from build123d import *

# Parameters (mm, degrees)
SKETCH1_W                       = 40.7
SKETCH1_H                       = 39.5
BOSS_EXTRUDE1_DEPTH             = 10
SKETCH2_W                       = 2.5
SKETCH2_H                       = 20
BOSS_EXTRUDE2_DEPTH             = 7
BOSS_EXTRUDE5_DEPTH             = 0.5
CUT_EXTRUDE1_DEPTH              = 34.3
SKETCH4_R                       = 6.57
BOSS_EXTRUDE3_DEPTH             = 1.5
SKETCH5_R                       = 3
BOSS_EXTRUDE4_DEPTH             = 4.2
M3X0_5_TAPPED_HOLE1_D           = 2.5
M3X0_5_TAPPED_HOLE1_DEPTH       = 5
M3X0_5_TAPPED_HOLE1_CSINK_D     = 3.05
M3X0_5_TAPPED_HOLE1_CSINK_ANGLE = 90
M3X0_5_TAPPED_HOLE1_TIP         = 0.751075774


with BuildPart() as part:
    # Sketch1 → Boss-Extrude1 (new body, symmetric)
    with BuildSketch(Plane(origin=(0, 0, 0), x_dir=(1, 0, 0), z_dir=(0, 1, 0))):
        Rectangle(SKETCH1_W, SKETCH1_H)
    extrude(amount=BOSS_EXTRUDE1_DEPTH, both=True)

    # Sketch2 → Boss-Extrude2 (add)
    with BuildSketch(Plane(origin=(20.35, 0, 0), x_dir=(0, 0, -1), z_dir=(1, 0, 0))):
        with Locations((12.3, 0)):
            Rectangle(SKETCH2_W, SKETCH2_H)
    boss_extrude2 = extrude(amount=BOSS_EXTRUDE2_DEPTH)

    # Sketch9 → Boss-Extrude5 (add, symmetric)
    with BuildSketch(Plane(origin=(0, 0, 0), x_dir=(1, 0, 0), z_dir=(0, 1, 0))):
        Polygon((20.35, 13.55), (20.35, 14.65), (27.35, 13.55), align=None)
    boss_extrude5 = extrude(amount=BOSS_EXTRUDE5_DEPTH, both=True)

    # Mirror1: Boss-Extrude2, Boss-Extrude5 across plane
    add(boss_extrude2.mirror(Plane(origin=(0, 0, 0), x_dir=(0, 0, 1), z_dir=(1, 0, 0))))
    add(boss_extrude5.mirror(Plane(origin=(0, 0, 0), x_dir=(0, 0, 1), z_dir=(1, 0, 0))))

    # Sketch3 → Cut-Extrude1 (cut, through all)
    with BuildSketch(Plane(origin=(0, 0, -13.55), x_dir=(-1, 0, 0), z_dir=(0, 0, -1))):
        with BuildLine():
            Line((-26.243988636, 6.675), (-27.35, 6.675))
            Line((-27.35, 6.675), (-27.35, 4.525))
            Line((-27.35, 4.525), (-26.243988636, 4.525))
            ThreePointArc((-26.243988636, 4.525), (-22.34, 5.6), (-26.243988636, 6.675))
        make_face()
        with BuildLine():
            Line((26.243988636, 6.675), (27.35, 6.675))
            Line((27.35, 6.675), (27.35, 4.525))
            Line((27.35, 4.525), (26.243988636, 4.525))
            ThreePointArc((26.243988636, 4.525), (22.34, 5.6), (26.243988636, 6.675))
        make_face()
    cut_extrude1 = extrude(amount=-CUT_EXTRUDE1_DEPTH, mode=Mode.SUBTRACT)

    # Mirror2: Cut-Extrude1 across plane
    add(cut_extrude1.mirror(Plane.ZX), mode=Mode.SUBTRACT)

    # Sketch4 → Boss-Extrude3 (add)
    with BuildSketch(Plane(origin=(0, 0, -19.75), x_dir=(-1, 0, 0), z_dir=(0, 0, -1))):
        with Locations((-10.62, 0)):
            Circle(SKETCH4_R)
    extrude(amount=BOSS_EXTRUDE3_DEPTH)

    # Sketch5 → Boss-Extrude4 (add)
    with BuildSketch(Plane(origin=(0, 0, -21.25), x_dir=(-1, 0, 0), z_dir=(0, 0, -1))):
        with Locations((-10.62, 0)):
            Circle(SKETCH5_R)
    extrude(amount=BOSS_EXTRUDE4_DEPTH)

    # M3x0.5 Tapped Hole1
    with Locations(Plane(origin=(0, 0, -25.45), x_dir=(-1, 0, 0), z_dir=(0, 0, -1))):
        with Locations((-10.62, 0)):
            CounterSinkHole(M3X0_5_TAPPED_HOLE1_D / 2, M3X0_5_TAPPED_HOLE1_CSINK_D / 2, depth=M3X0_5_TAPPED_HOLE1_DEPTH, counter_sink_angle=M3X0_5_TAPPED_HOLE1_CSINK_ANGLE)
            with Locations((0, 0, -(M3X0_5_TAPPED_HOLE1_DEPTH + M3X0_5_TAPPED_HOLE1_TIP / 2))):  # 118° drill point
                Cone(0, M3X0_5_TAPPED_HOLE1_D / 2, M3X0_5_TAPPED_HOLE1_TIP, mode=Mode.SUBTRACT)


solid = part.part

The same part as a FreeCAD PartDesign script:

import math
import FreeCAD as App
import Part
import Sketcher

doc = App.newDocument("Part")
body = doc.addObject("PartDesign::Body", "Body")

# Sketch on XZ plane
sketch1 = doc.addObject("Sketcher::SketchObject", "Sketch")
body.addObject(sketch1)
sketch1.AttachmentSupport = (doc.XZ_Plane, [""])
sketch1.MapMode = "FlatFace"
sketch1.addGeometry([
    Part.LineSegment(App.Vector(-20, -20, 0), App.Vector(-20, 20, 0)),
    Part.LineSegment(App.Vector(-20, 20, 0), App.Vector(20, 20, 0)),
    Part.LineSegment(App.Vector(20, 20, 0), App.Vector(20, -20, 0)),
    Part.LineSegment(App.Vector(20, -20, 0), App.Vector(-20, -20, 0)),
], False)
sketch1.addConstraint([
    Sketcher.Constraint("Coincident", 0, 2, 1, 1),
    Sketcher.Constraint("Coincident", 1, 2, 2, 1),
    Sketcher.Constraint("Coincident", 2, 2, 3, 1),
    Sketcher.Constraint("Coincident", 3, 2, 0, 1),
    Sketcher.Constraint("Vertical", 0),
    Sketcher.Constraint("Horizontal", 1),
    Sketcher.Constraint("Vertical", 2),
    Sketcher.Constraint("Horizontal", 3),
    Sketcher.Constraint("Symmetric", 0, 2, 2, 2, -1, 1),
    Sketcher.Constraint("DistanceX", 1, 1, 1, 2, 40.7),
    Sketcher.Constraint("DistanceY", 0, 1, 0, 2, 39.5),
])
pad1 = doc.addObject("PartDesign::Pad", "Pad")
body.addObject(pad1)
pad1.Profile = sketch1
pad1.Length = 20
pad1.Midplane = True

# Sketch on YZ plane
sketch2 = doc.addObject("Sketcher::SketchObject", "Sketch001")
body.addObject(sketch2)
sketch2.AttachmentSupport = (doc.YZ_Plane, [""])
sketch2.MapMode = "FlatFace"
sketch2.AttachmentOffset = App.Placement(App.Vector(0, 0, 20.35), App.Rotation())
sketch2.addGeometry([
    Part.LineSegment(App.Vector(10, -11.1, 0), App.Vector(-10, -11.1, 0)),
    Part.LineSegment(App.Vector(-10, -11.1, 0), App.Vector(-10, -13.6, 0)),
    Part.LineSegment(App.Vector(-10, -13.6, 0), App.Vector(10, -13.6, 0)),
    Part.LineSegment(App.Vector(10, -13.6, 0), App.Vector(10, -11.1, 0)),
], False)
sketch2.addConstraint([
    Sketcher.Constraint("Coincident", 0, 2, 1, 1),
    Sketcher.Constraint("Coincident", 1, 2, 2, 1),
    Sketcher.Constraint("Coincident", 2, 2, 3, 1),
    Sketcher.Constraint("Coincident", 3, 2, 0, 1),
    Sketcher.Constraint("Horizontal", 0),
    Sketcher.Constraint("Vertical", 1),
    Sketcher.Constraint("Horizontal", 2),
    Sketcher.Constraint("Vertical", 3),
    Sketcher.Constraint("DistanceX", 0, 2, 0, 1, 20.0),
    Sketcher.Constraint("DistanceY", 1, 2, 1, 1, 2.5),
    Sketcher.Constraint("DistanceX", 0, 2, -1, 1, 10.0),
    Sketcher.Constraint("DistanceY", 0, 2, -1, 1, 11.05),
])
pad2 = doc.addObject("PartDesign::Pad", "Pad001")
body.addObject(pad2)
pad2.Profile = sketch2
pad2.Length = 7

# Sketch on XZ plane
sketch3 = doc.addObject("Sketcher::SketchObject", "Sketch002")
body.addObject(sketch3)
sketch3.AttachmentSupport = (doc.XZ_Plane, [""])
sketch3.MapMode = "FlatFace"
sketch3.addGeometry([
    Part.LineSegment(App.Vector(20.4, -14.7, 0), App.Vector(20.4, -13.6, 0)),
    Part.LineSegment(App.Vector(20.4, -13.6, 0), App.Vector(27.4, -13.6, 0)),
    Part.LineSegment(App.Vector(27.4, -13.6, 0), App.Vector(20.4, -14.7, 0)),
], False)
sketch3.addConstraint([
    Sketcher.Constraint("Coincident", 0, 2, 1, 1),
    Sketcher.Constraint("Coincident", 1, 2, 2, 1),
    Sketcher.Constraint("Coincident", 2, 2, 0, 1),
    Sketcher.Constraint("Vertical", 0),
    Sketcher.Constraint("Horizontal", 1),
    Sketcher.Constraint("DistanceX", 1, 1, 1, 2, 7.0),
    Sketcher.Constraint("DistanceY", 0, 1, 0, 2, 1.1),
    Sketcher.Constraint("DistanceX", -1, 1, 0, 2, 20.35),
    Sketcher.Constraint("DistanceY", 0, 2, -1, 1, 13.55),
])
pad3 = doc.addObject("PartDesign::Pad", "Pad002")
body.addObject(pad3)
pad3.Profile = sketch3
pad3.Length = 1
pad3.Midplane = True
doc.recompute()

mirrored = doc.addObject("PartDesign::Mirrored", "Mirrored")
body.addObject(mirrored)
mirrored.Originals = [pad2, pad3]
mirrored.MirrorPlane = (doc.YZ_Plane, [""])
body.Tip = mirrored

# Sketch on XY plane
sketch4 = doc.addObject("Sketcher::SketchObject", "Sketch003")
body.addObject(sketch4)
sketch4.AttachmentSupport = (doc.XY_Plane, [""])
sketch4.MapMode = "FlatFace"
sketch4.AttachmentOffset = App.Placement(App.Vector(0, 0, -13.55), App.Rotation())
sketch4.addGeometry([
    Part.LineSegment(App.Vector(26.2, 6.7, 0), App.Vector(27.4, 6.7, 0)),  # 0
    Part.LineSegment(App.Vector(27.4, 6.7, 0), App.Vector(27.4, 4.5, 0)),  # 1
    Part.LineSegment(App.Vector(27.4, 4.5, 0), App.Vector(26.2, 4.5, 0)),  # 2
    Part.ArcOfCircle(Part.Circle(App.Vector(24.4, 5.6, 0), App.Vector(0, 0, 1), 2.1), math.radians(31), math.radians(329)),  # 3
    Part.LineSegment(App.Vector(-27.4, 6.7, 0), App.Vector(-26.2, 6.7, 0)),  # 4
    Part.ArcOfCircle(Part.Circle(App.Vector(-24.4, 5.6, 0), App.Vector(0, 0, 1), 2.1), math.radians(-149), math.radians(149)),  # 5
    Part.LineSegment(App.Vector(-26.2, 4.5, 0), App.Vector(-27.4, 4.5, 0)),  # 6
    Part.LineSegment(App.Vector(-27.4, 4.5, 0), App.Vector(-27.4, 6.7, 0)),  # 7
], False)
sketch4.addConstraint([
    Sketcher.Constraint("Coincident", 0, 2, 1, 1),
    Sketcher.Constraint("Coincident", 1, 2, 2, 1),
    Sketcher.Constraint("Coincident", 2, 2, 3, 2),
    Sketcher.Constraint("Coincident", 3, 1, 0, 1),
    Sketcher.Constraint("Coincident", 4, 2, 5, 2),
    Sketcher.Constraint("Coincident", 5, 1, 6, 1),
    Sketcher.Constraint("Coincident", 6, 2, 7, 1),
    Sketcher.Constraint("Coincident", 7, 2, 4, 1),
    Sketcher.Constraint("Horizontal", 0),
    Sketcher.Constraint("Vertical", 1),
    Sketcher.Constraint("Horizontal", 2),
    Sketcher.Constraint("Horizontal", 4),
    Sketcher.Constraint("Horizontal", 6),
    Sketcher.Constraint("Vertical", 7),
    Sketcher.Constraint("Equal", 3, 5),
    Sketcher.Constraint("Symmetric", 3, 3, 5, 3, -2),
    Sketcher.Constraint("Symmetric", 1, 2, 6, 2, -2),
    Sketcher.Constraint("Horizontal", 3, 1, 4, 2),
    Sketcher.Constraint("Vertical", 2, 2, 3, 1),
    Sketcher.Constraint("Radius", 3, 2.1),
    Sketcher.Constraint("DistanceY", 1, 2, 1, 1, 2.15),
    Sketcher.Constraint("DistanceY", -1, 1, 3, 3, 5.6),
    Sketcher.Constraint("DistanceX", -1, 1, 3, 3, 24.44),
    Sketcher.Constraint("DistanceX", -1, 1, 0, 2, 27.35),
])
pocket1 = doc.addObject("PartDesign::Pocket", "Pocket")
body.addObject(pocket1)
pocket1.Profile = sketch4
pocket1.Type = "ThroughAll"
pocket1.Reversed = True
doc.recompute()

mirrored2 = doc.addObject("PartDesign::Mirrored", "Mirrored001")
body.addObject(mirrored2)
mirrored2.Originals = [pocket1]
mirrored2.MirrorPlane = (doc.XZ_Plane, [""])
body.Tip = mirrored2

# Sketch on XY plane
sketch5 = doc.addObject("Sketcher::SketchObject", "Sketch004")
body.addObject(sketch5)
sketch5.AttachmentSupport = (doc.XY_Plane, [""])
sketch5.MapMode = "FlatFace"
sketch5.AttachmentOffset = App.Placement(App.Vector(0, 0, -19.75), App.Rotation())
sketch5.addGeometry(Part.Circle(App.Vector(11, 0, 0), App.Vector(0, 0, 1), 7), False)
sketch5.addConstraint([
    Sketcher.Constraint("PointOnObject", 0, 3, -1),
    Sketcher.Constraint("Diameter", 0, 13.14),
    Sketcher.Constraint("DistanceX", -1, 1, 0, 3, 10.62),
])
pad4 = doc.addObject("PartDesign::Pad", "Pad003")
body.addObject(pad4)
pad4.Profile = sketch5
pad4.Length = 1.5
pad4.Reversed = True

# Sketch on XY plane
sketch6 = doc.addObject("Sketcher::SketchObject", "Sketch005")
body.addObject(sketch6)
sketch6.AttachmentSupport = (doc.XY_Plane, [""])
sketch6.MapMode = "FlatFace"
sketch6.AttachmentOffset = App.Placement(App.Vector(0, 0, -21.25), App.Rotation())
sketch6.addGeometry(Part.Circle(App.Vector(10.6, 0, 0), App.Vector(0, 0, 1), 3), False)
sketch6.addConstraint([
    Sketcher.Constraint("PointOnObject", 0, 3, -1),
    Sketcher.Constraint("Diameter", 0, 6.0),
    Sketcher.Constraint("DistanceX", -1, 1, 0, 3, 10.62),
])
pad5 = doc.addObject("PartDesign::Pad", "Pad004")
body.addObject(pad5)
pad5.Profile = sketch6
pad5.Length = 4.2
pad5.Reversed = True

# Sketch on XY plane
sketch7 = doc.addObject("Sketcher::SketchObject", "Sketch006")
body.addObject(sketch7)
sketch7.AttachmentSupport = (doc.XY_Plane, [""])
sketch7.MapMode = "FlatFace"
sketch7.AttachmentOffset = App.Placement(App.Vector(0, 0, -25.45), App.Rotation())
sketch7.addGeometry(Part.Circle(App.Vector(10.6, 0, 0), App.Vector(0, 0, 1), 1.2), False)
sketch7.addConstraint([
    Sketcher.Constraint("PointOnObject", 0, 3, -1),
    Sketcher.Constraint("Diameter", 0, 2.5),
    Sketcher.Constraint("DistanceX", -1, 1, 0, 3, 10.62),
])
doc.recompute()
hole = doc.addObject("PartDesign::Hole", "Hole")
body.addObject(hole)
hole.Profile = sketch7
hole.ThreadType = "None"
hole.Diameter = 2.5
hole.DepthType = "Dimension"
hole.Depth = 5
hole.DrillPoint = "Angled"
hole.DrillPointAngle = 118
hole.HoleCutType = "Countersink"
hole.HoleCutDiameter = 3.05
hole.HoleCutCountersinkAngle = 90
hole.Reversed = True

doc.recompute()
